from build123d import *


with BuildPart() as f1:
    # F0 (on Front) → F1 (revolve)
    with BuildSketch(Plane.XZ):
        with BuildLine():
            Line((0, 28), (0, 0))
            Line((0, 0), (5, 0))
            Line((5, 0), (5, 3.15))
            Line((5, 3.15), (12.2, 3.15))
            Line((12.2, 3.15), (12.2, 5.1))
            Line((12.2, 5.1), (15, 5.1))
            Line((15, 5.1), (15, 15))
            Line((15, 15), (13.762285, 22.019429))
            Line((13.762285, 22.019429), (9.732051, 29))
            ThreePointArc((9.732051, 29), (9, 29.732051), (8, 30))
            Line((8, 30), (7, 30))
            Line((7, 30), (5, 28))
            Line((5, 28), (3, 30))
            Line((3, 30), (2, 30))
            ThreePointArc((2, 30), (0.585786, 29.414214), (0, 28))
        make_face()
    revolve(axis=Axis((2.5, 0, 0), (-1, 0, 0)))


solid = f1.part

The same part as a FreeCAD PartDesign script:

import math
import FreeCAD as App
import Part
import Sketcher

V = App.Vector
Q = App.Units.Quantity

doc = App.newDocument("Part")
params = doc.addObject("Spreadsheet::Sheet", "Params")
for row, (alias, value) in enumerate([
    ("sketch1_radius", "2 mm"),
    ("sketch1_width", "5 mm"),
    ("sketch1_height", "28 mm"),
    ("sketch1_width2", "7.2 mm"),
    ("sketch1_width3", "2.8 mm"),
    ("revolution_angle", "360 deg"),
], start=1):
    params.set(f"A{row}", alias)
    params.set(f"B{row}", "=" + value)
    params.setAlias(f"B{row}", alias)

body = doc.addObject("PartDesign::Body", "Body")

# Sketch on XZ plane
sketch1 = body.newObject("Sketcher::SketchObject", "Sketch")
sketch1.AttachmentSupport = (doc.getObject("XZ_Plane"), [""])
sketch1.MapMode = "FlatFace"
sketch1.addGeometry(Part.LineSegment(V(0, 28, 0), V(0, 0, 0)), False)
sketch1.addGeometry(Part.LineSegment(V(0, 0, 0), V(5, 0, 0)), False)
sketch1.addGeometry(Part.LineSegment(V(5, 0, 0), V(5, 3.1, 0)), False)
sketch1.addGeometry(Part.LineSegment(V(5, 3.1, 0), V(12.2, 3.1, 0)), False)
sketch1.addGeometry(Part.LineSegment(V(12.2, 3.1, 0), V(12.2, 5.1, 0)), False)
sketch1.addGeometry(Part.LineSegment(V(12.2, 5.1, 0), V(15, 5.1, 0)), False)
sketch1.addGeometry(Part.LineSegment(V(15, 5.1, 0), V(15, 15, 0)), False)
sketch1.addGeometry(Part.LineSegment(V(15, 15, 0), V(13.8, 22, 0)), False)
sketch1.addGeometry(Part.LineSegment(V(13.8, 22, 0), V(9.7, 29, 0)), False)
sketch1.addGeometry(Part.ArcOfCircle(Part.Circle(V(8, 28, 0), V(0, 0, 1), 2), math.radians(30), math.radians(90)), False)
sketch1.addGeometry(Part.LineSegment(V(8, 30, 0), V(7, 30, 0)), False)
sketch1.addGeometry(Part.LineSegment(V(7, 30, 0), V(5, 28, 0)), False)
sketch1.addGeometry(Part.LineSegment(V(5, 28, 0), V(3, 30, 0)), False)
sketch1.addGeometry(Part.LineSegment(V(3, 30, 0), V(2, 30, 0)), False)
sketch1.addGeometry(Part.ArcOfCircle(Part.Circle(V(2, 28, 0), V(0, 0, 1), 2), math.radians(90), math.radians(180)), False)
sketch1.addConstraint(Sketcher.Constraint("Coincident", 0, 2, 1, 1))
sketch1.addConstraint(Sketcher.Constraint("Coincident", 1, 2, 2, 1))
sketch1.addConstraint(Sketcher.Constraint("Coincident", 2, 2, 3, 1))
sketch1.addConstraint(Sketcher.Constraint("Coincident", 3, 2, 4, 1))
sketch1.addConstraint(Sketcher.Constraint("Coincident", 4, 2, 5, 1))
sketch1.addConstraint(Sketcher.Constraint("Coincident", 5, 2, 6, 1))
sketch1.addConstraint(Sketcher.Constraint("Coincident", 6, 2, 7, 1))
sketch1.addConstraint(Sketcher.Constraint("Coincident", 7, 2, 8, 1))
sketch1.addConstraint(Sketcher.Constraint("Tangent", 8, 2, 9, 1))
sketch1.addConstraint(Sketcher.Constraint("Tangent", 9, 2, 10, 1))
sketch1.addConstraint(Sketcher.Constraint("Coincident", 10, 2, 11, 1))
sketch1.addConstraint(Sketcher.Constraint("Coincident", 11, 2, 12, 1))
sketch1.addConstraint(Sketcher.Constraint("Coincident", 12, 2, 13, 1))
sketch1.addConstraint(Sketcher.Constraint("Tangent", 13, 2, 14, 1))
sketch1.addConstraint(Sketcher.Constraint("Tangent", 14, 2, 0, 1))
sketch1.addConstraint(Sketcher.Constraint("Vertical", 0))
sketch1.addConstraint(Sketcher.Constraint("Horizontal", 1))
sketch1.addConstraint(Sketcher.Constraint("Vertical", 2))
sketch1.addConstraint(Sketcher.Constraint("Horizontal", 3))
sketch1.addConstraint(Sketcher.Constraint("Vertical", 4))
sketch1.addConstraint(Sketcher.Constraint("Horizontal", 5))
sketch1.addConstraint(Sketcher.Constraint("Vertical", 6))
sketch1.addConstraint(Sketcher.Constraint("Horizontal", 10))
sketch1.addConstraint(Sketcher.Constraint("Horizontal", 13))
sketch1.addConstraint(Sketcher.Constraint("Coincident", 0, 2, -1, 1))
sketch1.addConstraint(Sketcher.Constraint("Equal", 9, 14))
sketch1.addConstraint(Sketcher.Constraint("Perpendicular", 11, 12))
sketch1.addConstraint(Sketcher.Constraint("Horizontal", 9, 3, 14, 3))
sketch1.addConstraint(Sketcher.Constraint("Horizontal", 14, 3, 11, 2))
sketch1.addConstraint(Sketcher.Constraint("Vertical", 2, 2, 11, 2))
sketch1.addConstraint(Sketcher.Constraint("Equal", 10, 13))
sketch1.addConstraint(Sketcher.Constraint("Equal", 11, 12))
sketch1.addConstraint(Sketcher.Constraint("Radius", 9, Q("2 mm")))
sketch1.addConstraint(Sketcher.Constraint("DistanceX", 1, 1, 1, 2, Q("5 mm")))
sketch1.addConstraint(Sketcher.Constraint("DistanceY", 0, 2, 0, 1, Q("28 mm")))
sketch1.addConstraint(Sketcher.Constraint("Angle", 7, Q("100.000002 deg")))
sketch1.addConstraint(Sketcher.Constraint("Angle", 8, Q("119.999997 deg")))
sketch1.addConstraint(Sketcher.Constraint("DistanceX", 3, 1, 3, 2, Q("7.2 mm")))
sketch1.addConstraint(Sketcher.Constraint("DistanceX", 5, 1, 5, 2, Q("2.8 mm")))
sketch1.addConstraint(Sketcher.Constraint("DistanceY", 6, 1, 6, 2, Q("9.9 mm")))
sketch1.addConstraint(Sketcher.Constraint("DistanceY", -1, 1, 6, 2, Q("15 mm")))
sketch1.addConstraint(Sketcher.Constraint("DistanceY", 2, 1, 2, 2, Q("3.15 mm")))
sketch1.setExpression("Constraints[32]", "Params.sketch1_radius")
sketch1.setExpression("Constraints[33]", "Params.sketch1_width")
sketch1.setExpression("Constraints[34]", "Params.sketch1_height")
sketch1.setExpression("Constraints[37]", "Params.sketch1_width2")
sketch1.setExpression("Constraints[38]", "Params.sketch1_width3")
revolution = body.newObject("PartDesign::Revolution", "Revolution")
revolution.Profile = sketch1
revolution.ReferenceAxis = (sketch1, ["H_Axis"])
revolution.setExpression("Angle", "Params.revolution_angle")

doc.recompute()
